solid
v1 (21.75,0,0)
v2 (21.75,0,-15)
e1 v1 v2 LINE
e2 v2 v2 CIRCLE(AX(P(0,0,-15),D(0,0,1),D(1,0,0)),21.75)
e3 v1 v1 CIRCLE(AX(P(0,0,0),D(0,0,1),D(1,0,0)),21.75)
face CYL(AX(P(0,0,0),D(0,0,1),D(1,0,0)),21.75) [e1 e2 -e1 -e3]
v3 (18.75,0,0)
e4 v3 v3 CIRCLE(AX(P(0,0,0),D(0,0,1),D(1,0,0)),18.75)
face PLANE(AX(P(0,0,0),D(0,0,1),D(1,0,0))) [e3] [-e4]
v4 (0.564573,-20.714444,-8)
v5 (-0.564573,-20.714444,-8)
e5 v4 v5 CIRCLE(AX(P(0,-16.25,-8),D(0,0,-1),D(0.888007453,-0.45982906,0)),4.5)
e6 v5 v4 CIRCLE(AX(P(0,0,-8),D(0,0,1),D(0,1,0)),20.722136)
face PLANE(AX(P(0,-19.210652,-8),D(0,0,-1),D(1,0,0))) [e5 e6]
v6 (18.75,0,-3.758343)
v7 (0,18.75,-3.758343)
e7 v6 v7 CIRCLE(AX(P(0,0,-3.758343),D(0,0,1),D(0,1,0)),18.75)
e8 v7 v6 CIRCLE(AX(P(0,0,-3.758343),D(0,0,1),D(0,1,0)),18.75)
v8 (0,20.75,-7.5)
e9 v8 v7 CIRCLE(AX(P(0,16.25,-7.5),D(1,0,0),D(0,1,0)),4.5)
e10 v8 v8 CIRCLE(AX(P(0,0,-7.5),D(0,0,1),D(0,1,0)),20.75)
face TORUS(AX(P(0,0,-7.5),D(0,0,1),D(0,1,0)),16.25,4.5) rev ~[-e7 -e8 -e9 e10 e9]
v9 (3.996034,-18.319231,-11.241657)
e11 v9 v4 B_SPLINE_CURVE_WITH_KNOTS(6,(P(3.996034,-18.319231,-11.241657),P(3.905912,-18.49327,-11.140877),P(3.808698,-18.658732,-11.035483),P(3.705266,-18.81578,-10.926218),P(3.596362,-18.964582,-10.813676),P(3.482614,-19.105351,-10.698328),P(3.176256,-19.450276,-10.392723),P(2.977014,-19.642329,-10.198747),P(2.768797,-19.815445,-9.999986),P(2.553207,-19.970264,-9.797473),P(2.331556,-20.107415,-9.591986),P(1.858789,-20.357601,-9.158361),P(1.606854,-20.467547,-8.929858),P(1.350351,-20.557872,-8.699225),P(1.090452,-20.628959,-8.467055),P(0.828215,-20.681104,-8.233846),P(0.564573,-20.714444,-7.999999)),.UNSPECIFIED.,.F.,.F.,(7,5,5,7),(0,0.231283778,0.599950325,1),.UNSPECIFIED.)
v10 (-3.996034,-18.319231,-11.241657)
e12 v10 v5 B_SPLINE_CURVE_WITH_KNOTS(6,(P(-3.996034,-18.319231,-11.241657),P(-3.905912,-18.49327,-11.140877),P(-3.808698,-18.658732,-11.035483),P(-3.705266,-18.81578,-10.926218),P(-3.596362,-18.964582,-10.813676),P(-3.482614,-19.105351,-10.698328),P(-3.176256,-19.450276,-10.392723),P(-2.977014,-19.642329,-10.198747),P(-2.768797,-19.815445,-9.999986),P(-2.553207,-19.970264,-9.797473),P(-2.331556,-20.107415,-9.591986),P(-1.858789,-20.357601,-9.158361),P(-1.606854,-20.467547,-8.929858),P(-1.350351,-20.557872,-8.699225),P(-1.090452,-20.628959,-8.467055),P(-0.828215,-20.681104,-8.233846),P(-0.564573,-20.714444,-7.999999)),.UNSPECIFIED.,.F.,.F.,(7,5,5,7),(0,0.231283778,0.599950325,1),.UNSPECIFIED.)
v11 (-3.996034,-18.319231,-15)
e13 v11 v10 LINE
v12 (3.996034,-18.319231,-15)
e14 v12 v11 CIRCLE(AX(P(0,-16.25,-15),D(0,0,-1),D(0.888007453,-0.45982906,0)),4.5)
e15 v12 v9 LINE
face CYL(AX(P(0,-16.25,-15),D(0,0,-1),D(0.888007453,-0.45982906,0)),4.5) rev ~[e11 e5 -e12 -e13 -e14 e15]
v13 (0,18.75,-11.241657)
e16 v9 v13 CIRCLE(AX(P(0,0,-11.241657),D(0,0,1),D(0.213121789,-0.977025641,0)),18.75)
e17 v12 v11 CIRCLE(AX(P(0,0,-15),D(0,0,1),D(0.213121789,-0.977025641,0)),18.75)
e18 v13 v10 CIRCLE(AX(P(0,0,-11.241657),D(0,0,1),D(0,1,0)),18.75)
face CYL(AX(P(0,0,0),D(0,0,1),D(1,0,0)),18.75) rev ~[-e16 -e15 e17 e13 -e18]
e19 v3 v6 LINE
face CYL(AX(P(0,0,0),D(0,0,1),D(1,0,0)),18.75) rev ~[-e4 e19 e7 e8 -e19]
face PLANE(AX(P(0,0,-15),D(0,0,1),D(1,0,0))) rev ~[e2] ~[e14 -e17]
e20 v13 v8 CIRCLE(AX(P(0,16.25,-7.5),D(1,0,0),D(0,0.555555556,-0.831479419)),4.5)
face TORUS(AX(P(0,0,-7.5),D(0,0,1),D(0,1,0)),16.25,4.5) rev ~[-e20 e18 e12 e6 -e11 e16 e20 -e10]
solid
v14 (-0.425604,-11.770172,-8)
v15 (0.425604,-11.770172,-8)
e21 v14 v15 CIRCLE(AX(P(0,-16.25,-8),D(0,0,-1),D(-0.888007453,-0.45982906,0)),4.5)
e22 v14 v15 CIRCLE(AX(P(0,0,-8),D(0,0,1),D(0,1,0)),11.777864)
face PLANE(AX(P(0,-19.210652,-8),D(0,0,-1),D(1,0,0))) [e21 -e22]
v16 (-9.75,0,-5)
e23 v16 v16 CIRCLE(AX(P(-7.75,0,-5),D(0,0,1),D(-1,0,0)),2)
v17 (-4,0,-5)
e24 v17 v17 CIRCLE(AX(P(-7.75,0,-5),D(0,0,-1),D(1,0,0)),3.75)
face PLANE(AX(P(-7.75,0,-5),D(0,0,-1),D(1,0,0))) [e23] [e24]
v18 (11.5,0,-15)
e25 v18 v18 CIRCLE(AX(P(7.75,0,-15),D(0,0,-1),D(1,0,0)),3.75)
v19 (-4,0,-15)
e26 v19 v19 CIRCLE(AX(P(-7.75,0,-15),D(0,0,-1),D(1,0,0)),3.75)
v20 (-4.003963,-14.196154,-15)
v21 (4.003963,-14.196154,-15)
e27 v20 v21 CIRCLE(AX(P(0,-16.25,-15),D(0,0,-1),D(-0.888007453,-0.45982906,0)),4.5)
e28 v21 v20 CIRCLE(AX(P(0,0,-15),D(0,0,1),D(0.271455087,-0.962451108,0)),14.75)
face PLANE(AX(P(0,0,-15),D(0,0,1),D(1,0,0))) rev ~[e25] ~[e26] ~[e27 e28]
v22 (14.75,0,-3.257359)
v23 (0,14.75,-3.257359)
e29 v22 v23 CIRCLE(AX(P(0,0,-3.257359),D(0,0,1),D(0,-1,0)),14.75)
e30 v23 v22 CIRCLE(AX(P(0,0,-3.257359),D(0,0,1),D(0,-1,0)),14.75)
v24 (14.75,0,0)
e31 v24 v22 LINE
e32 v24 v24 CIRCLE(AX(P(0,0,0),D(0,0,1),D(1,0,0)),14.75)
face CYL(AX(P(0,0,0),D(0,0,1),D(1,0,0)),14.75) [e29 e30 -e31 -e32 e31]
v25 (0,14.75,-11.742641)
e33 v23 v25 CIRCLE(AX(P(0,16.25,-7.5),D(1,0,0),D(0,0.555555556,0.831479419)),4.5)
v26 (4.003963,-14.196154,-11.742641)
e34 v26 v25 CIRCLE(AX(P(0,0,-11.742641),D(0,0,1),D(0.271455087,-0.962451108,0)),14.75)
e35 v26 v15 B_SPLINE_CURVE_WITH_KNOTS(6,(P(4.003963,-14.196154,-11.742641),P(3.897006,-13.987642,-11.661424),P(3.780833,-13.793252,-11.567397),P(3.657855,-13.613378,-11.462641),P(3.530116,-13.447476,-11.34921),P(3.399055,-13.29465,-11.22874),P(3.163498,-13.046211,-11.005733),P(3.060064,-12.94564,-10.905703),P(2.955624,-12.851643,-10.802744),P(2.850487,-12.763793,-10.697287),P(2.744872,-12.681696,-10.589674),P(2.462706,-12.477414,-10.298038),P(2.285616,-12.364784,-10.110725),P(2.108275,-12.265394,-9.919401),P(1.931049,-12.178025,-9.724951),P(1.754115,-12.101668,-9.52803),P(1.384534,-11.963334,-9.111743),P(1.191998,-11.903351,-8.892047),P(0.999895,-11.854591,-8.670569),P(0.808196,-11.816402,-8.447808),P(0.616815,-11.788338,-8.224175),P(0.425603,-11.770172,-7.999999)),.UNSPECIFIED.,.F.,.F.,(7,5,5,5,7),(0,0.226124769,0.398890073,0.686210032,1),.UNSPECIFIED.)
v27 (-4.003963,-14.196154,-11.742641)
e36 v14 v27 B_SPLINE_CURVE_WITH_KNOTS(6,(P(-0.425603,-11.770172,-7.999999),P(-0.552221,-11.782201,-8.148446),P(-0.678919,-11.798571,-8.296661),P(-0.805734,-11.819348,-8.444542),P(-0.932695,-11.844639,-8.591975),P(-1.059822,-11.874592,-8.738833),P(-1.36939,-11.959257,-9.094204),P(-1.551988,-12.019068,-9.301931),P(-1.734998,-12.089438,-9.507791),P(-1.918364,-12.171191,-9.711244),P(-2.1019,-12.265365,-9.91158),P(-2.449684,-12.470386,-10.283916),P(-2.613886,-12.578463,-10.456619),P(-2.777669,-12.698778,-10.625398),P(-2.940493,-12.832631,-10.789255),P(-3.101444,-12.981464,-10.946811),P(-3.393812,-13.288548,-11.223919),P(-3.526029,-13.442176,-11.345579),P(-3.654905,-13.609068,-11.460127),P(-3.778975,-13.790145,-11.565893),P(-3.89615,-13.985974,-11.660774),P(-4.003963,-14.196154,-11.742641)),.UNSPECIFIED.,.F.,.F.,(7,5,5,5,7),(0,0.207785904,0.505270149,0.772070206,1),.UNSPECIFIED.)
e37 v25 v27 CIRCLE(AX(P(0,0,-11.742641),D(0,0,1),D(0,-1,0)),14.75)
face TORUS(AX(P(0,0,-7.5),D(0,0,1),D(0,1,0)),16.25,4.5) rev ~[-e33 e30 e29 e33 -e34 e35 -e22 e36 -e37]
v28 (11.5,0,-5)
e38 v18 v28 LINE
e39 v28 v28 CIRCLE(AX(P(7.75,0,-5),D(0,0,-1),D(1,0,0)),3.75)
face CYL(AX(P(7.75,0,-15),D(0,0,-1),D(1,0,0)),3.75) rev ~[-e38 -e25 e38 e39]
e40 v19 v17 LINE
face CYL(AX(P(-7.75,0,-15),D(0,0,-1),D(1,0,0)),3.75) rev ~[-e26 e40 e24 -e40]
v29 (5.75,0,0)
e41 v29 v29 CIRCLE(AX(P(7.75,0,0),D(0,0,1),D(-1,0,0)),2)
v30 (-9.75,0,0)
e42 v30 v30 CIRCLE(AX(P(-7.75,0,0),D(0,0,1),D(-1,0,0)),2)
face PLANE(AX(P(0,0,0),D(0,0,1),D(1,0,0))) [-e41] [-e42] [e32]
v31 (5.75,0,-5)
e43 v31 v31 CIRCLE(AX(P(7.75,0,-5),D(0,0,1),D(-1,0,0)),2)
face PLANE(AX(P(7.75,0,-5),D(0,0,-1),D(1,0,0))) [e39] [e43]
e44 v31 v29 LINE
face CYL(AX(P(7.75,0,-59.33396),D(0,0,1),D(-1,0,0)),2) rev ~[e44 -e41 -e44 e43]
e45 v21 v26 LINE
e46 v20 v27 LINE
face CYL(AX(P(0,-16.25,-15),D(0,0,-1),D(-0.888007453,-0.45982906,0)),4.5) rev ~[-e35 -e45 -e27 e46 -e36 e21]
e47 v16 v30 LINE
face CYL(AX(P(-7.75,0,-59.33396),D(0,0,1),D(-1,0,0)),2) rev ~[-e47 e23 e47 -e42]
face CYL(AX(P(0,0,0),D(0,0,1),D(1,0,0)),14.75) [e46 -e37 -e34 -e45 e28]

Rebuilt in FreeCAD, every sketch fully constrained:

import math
import FreeCAD as App
import Part
import Sketcher

V = App.Vector

doc = App.newDocument("Part")
body = doc.addObject("PartDesign::Body", "Body")

# Sketch on XY plane
sketch1 = body.newObject("Sketcher::SketchObject", "Sketch")
sketch1.AttachmentSupport = (doc.getObject("XY_Plane"), [""])
sketch1.MapMode = "FlatFace"
sketch1.addGeometry(Part.Circle(V(0, 0, 0), V(0, 0, 1), 22), False)
sketch1.addGeometry(Part.Circle(V(0, 0, 0), V(0, 0, 1), 19), False)
sketch1.addConstraint(Sketcher.Constraint("Coincident", 0, 3, -1, 1))
sketch1.addConstraint(Sketcher.Constraint("Coincident", 1, 3, -1, 1))
sketch1.addConstraint(Sketcher.Constraint("Diameter", 0, 43.5))
sketch1.addConstraint(Sketcher.Constraint("Diameter", 1, 37.5))
pad1 = body.newObject("PartDesign::Pad", "Pad")
pad1.Profile = sketch1
pad1.Length = 15
pad1.Reversed = True
body2 = doc.addObject("PartDesign::Body", "Body001")

# Sketch on XY plane
sketch2 = body2.newObject("Sketcher::SketchObject", "Sketch001")
sketch2.AttachmentSupport = (doc.getObject("XY_Plane001"), [""])
sketch2.MapMode = "FlatFace"
sketch2.addGeometry(Part.Circle(V(0, 0, 0), V(0, 0, 1), 15), False)
sketch2.addConstraint(Sketcher.Constraint("Coincident", 0, 3, -1, 1))
sketch2.addConstraint(Sketcher.Constraint("Diameter", 0, 29.5))
pad2 = body2.newObject("PartDesign::Pad", "Pad001")
pad2.Profile = sketch2
pad2.Length = 15
pad2.Reversed = True
body3 = doc.addObject("PartDesign::Body", "Body002")

# Sketch on YZ plane
sketch3 = body3.newObject("Sketcher::SketchObject", "Sketch002")
sketch3.AttachmentSupport = (doc.getObject("YZ_Plane002"), [""])
sketch3.MapMode = "FlatFace"
sketch3.addGeometry(Part.ArcOfCircle(Part.Circle(V(16.2, -7.5, 0), V(0, 0, 1), 4.5), math.radians(56), math.radians(304)), False)
sketch3.addGeometry(Part.ArcOfCircle(Part.Circle(V(16.2, -7.5, 0), V(0, 0, 1), 4.5), math.radians(-56), math.radians(0)), False)
sketch3.addGeometry(Part.ArcOfCircle(Part.Circle(V(16.2, -7.5, 0), V(0, 0, 1), 4.5), math.radians(0), math.radians(56)), False)
sketch3.addConstraint(Sketcher.Constraint("Tangent", 0, 2, 1, 1))
sketch3.addConstraint(Sketcher.Constraint("Tangent", 1, 2, 2, 1))
sketch3.addConstraint(Sketcher.Constraint("Tangent", 2, 2, 0, 1))
sketch3.addConstraint(Sketcher.Constraint("Horizontal", 2, 3, 1, 2))
sketch3.addConstraint(Sketcher.Constraint("Vertical", 0, 2, 2, 2))
sketch3.addConstraint(Sketcher.Constraint("Radius", 0, 4.5))
sketch3.addConstraint(Sketcher.Constraint("DistanceX", 0, 2, 1, 2, 2.0))
sketch3.addConstraint(Sketcher.Constraint("DistanceY", 0, 3, -1, 1, 7.5))
sketch3.addConstraint(Sketcher.Constraint("DistanceX", -1, 1, 0, 3, 16.25))
revolution = body3.newObject("PartDesign::Revolution", "Revolution")
revolution.Profile = sketch3
revolution.ReferenceAxis = (sketch3, ["V_Axis"])
revolution.Angle = 360
doc.recompute()

body4 = doc.addObject("PartDesign::Body", "Body003")
body4.BaseFeature = body3
boolean = body.newObject("PartDesign::Boolean", "Boolean")
boolean.Type = "Cut"
boolean.addObjects([body4])
doc.recompute()

boolean2 = body2.newObject("PartDesign::Boolean", "Boolean001")
boolean2.Type = "Cut"
boolean2.addObjects([body3])
body5 = doc.addObject("PartDesign::Body", "Body004")

# Sketch on XY plane
sketch4 = body5.newObject("Sketcher::SketchObject", "Sketch003")
sketch4.AttachmentSupport = (doc.getObject("XY_Plane004"), [""])
sketch4.MapMode = "FlatFace"
sketch4.AttachmentOffset = App.Placement(V(0, 0, -15), App.Rotation())
sketch4.addGeometry(Part.ArcOfCircle(Part.Circle(V(0, -16.2, 0), V(0, 0, 1), 4.5), math.radians(-153), math.radians(-27)), False)
sketch4.addGeometry(Part.ArcOfCircle(Part.Circle(V(0, -16.2, 0), V(0, 0, 1), 4.5), math.radians(0), math.radians(207)), False)
sketch4.addGeometry(Part.ArcOfCircle(Part.Circle(V(0, -16.2, 0), V(0, 0, 1), 4.5), math.radians(-27), math.radians(0)), False)
sketch4.addConstraint(Sketcher.Constraint("Tangent", 0, 1, 1, 2))
sketch4.addConstraint(Sketcher.Constraint("Tangent", 1, 1, 2, 2))
sketch4.addConstraint(Sketcher.Constraint("Tangent", 2, 1, 0, 2))
sketch4.addConstraint(Sketcher.Constraint("Symmetric", 0, 1, 2, 1, -2))
sketch4.addConstraint(Sketcher.Constraint("Horizontal", 2, 3, 1, 1))
sketch4.addConstraint(Sketcher.Constraint("Radius", 0, 4.5))
sketch4.addConstraint(Sketcher.Constraint("DistanceY", 0, 3, -1, 1, 16.25))
sketch4.addConstraint(Sketcher.Constraint("DistanceY", 0, 1, -1, 1, 18.319231))
pad3 = body5.newObject("PartDesign::Pad", "Pad002")
pad3.Profile = sketch4
pad3.Length = 7
doc.recompute()

body6 = doc.addObject("PartDesign::Body", "Body005")
body6.BaseFeature = body5
boolean3 = body.newObject("PartDesign::Boolean", "Boolean002")
boolean3.Type = "Cut"
boolean3.addObjects([body6])
doc.recompute()

boolean4 = body2.newObject("PartDesign::Boolean", "Boolean003")
boolean4.Type = "Cut"
boolean4.addObjects([body5])

# Sketch on XY plane
sketch5 = body2.newObject("Sketcher::SketchObject", "Sketch004")
sketch5.AttachmentSupport = (doc.getObject("XY_Plane001"), [""])
sketch5.MapMode = "FlatFace"
sketch5.AttachmentOffset = App.Placement(V(0, 0, -15), App.Rotation())
sketch5.addGeometry(Part.Circle(V(-7.8, 0, 0), V(0, 0, 1), 2), False)
sketch5.addGeometry(Part.Circle(V(7.8, 0, 0), V(0, 0, 1), 2), False)
sketch5.addConstraint(Sketcher.Constraint("Equal", 0, 1))
sketch5.addConstraint(Sketcher.Constraint("Symmetric", 0, 3, 1, 3, -1, 1))
sketch5.addConstraint(Sketcher.Constraint("PointOnObject", 0, 3, -1))
sketch5.addConstraint(Sketcher.Constraint("Diameter", 0, 4.0))
sketch5.addConstraint(Sketcher.Constraint("DistanceX", 0, 3, 1, 3, 15.5))
doc.recompute()
hole = body2.newObject("PartDesign::Hole", "Hole")
hole.Profile = sketch5
hole.ThreadType = "None"
hole.Diameter = 4
hole.DepthType = "ThroughAll"
hole.Reversed = True

# Sketch on XY plane
sketch6 = body2.newObject("Sketcher::SketchObject", "Sketch005")
sketch6.AttachmentSupport = (doc.getObject("XY_Plane001"), [""])
sketch6.MapMode = "FlatFace"
sketch6.AttachmentOffset = App.Placement(V(0, 0, -15), App.Rotation())
sketch6.addGeometry(Part.Circle(V(-7.8, 0, 0), V(0, 0, 1), 3.8), False)
sketch6.addGeometry(Part.Circle(V(7.8, 0, 0), V(0, 0, 1), 3.8), False)
sketch6.addConstraint(Sketcher.Constraint("Equal", 0, 1))
sketch6.addConstraint(Sketcher.Constraint("Symmetric", 0, 3, 1, 3, -1, 1))
sketch6.addConstraint(Sketcher.Constraint("PointOnObject", 0, 3, -1))
sketch6.addConstraint(Sketcher.Constraint("Diameter", 0, 7.5))
sketch6.addConstraint(Sketcher.Constraint("DistanceX", 0, 3, 1, 3, 15.5))
pocket1 = body2.newObject("PartDesign::Pocket", "Pocket")
pocket1.Profile = sketch6
pocket1.Length = 10
pocket1.Reversed = True

doc.recompute()
